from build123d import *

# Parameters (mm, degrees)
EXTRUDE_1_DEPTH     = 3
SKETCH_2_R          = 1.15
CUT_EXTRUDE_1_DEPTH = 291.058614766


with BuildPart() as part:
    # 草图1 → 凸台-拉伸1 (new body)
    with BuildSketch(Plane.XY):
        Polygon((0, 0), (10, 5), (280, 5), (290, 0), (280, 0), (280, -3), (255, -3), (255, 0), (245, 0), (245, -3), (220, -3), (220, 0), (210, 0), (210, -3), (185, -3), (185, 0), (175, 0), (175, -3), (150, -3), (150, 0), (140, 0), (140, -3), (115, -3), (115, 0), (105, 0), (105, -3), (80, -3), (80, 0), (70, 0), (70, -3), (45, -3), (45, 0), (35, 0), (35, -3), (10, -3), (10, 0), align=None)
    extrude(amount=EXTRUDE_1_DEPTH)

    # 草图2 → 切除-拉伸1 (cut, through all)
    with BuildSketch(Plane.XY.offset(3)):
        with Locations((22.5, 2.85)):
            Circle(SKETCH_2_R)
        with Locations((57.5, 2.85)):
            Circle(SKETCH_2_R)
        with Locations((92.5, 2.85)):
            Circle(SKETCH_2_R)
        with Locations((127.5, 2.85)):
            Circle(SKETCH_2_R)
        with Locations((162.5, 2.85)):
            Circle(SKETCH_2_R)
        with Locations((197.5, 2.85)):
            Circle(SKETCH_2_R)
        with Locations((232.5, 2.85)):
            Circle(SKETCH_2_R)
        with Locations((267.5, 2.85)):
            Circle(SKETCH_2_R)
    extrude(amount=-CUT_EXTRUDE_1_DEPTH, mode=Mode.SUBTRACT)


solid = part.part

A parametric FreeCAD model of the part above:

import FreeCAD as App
import Part
import Sketcher
Q = App.Units.Quantity

doc = App.newDocument("Part")
body = doc.addObject("PartDesign::Body", "Body")

# Sketch on XY plane
sketch1 = body.newObject("Sketcher::SketchObject", "Sketch")
sketch1.AttachmentSupport = (doc.getObject("XY_Plane"), [""])
sketch1.MapMode = "FlatFace"
sketch1.addGeometry(Part.LineSegment(App.Vector(10, 5, 0), App.Vector(0, 0, 0)), False)
sketch1.addGeometry(Part.LineSegment(App.Vector(0, 0, 0), App.Vector(10, 0, 0)), False)
sketch1.addGeometry(Part.LineSegment(App.Vector(10, 0, 0), App.Vector(10, -3, 0)), False)
sketch1.addGeometry(Part.LineSegment(App.Vector(10, -3, 0), App.Vector(35, -3, 0)), False)
sketch1.addGeometry(Part.LineSegment(App.Vector(35, -3, 0), App.Vector(35, 0, 0)), False)
sketch1.addGeometry(Part.LineSegment(App.Vector(35, 0, 0), App.Vector(45, 0, 0)), False)
sketch1.addGeometry(Part.LineSegment(App.Vector(45, 0, 0), App.Vector(45, -3, 0)), False)
sketch1.addGeometry(Part.LineSegment(App.Vector(45, -3, 0), App.Vector(70, -3, 0)), False)
sketch1.addGeometry(Part.LineSegment(App.Vector(70, -3, 0), App.Vector(70, 0, 0)), False)
sketch1.addGeometry(Part.LineSegment(App.Vector(70, 0, 0), App.Vector(80, 0, 0)), False)
sketch1.addGeometry(Part.LineSegment(App.Vector(80, 0, 0), App.Vector(80, -3, 0)), False)
sketch1.addGeometry(Part.LineSegment(App.Vector(80, -3, 0), App.Vector(105, -3, 0)), False)
sketch1.addGeometry(Part.LineSegment(App.Vector(105, -3, 0), App.Vector(105, 0, 0)), False)
sketch1.addGeometry(Part.LineSegment(App.Vector(105, 0, 0), App.Vector(115, 0, 0)), False)
sketch1.addGeometry(Part.LineSegment(App.Vector(115, 0, 0), App.Vector(115, -3, 0)), False)
sketch1.addGeometry(Part.LineSegment(App.Vector(115, -3, 0), App.Vector(140, -3, 0)), False)
sketch1.addGeometry(Part.LineSegment(App.Vector(140, -3, 0), App.Vector(140, 0, 0)), False)
sketch1.addGeometry(Part.LineSegment(App.Vector(140, 0, 0), App.Vector(150, 0, 0)), False)
sketch1.addGeometry(Part.LineSegment(App.Vector(150, 0, 0), App.Vector(150, -3, 0)), False)
sketch1.addGeometry(Part.LineSegment(App.Vector(150, -3, 0), App.Vector(175, -3, 0)), False)
sketch1.addGeometry(Part.LineSegment(App.Vector(175, -3, 0), App.Vector(175, 0, 0)), False)
sketch1.addGeometry(Part.LineSegment(App.Vector(175, 0, 0), App.Vector(185, 0, 0)), False)
sketch1.addGeometry(Part.LineSegment(App.Vector(185, 0, 0), App.Vector(185, -3, 0)), False)
sketch1.addGeometry(Part.LineSegment(App.Vector(185, -3, 0), App.Vector(210, -3, 0)), False)
sketch1.addGeometry(Part.LineSegment(App.Vector(210, -3, 0), App.Vector(210, 0, 0)), False)
sketch1.addGeometry(Part.LineSegment(App.Vector(210, 0, 0), App.Vector(220, 0, 0)), False)
sketch1.addGeometry(Part.LineSegment(App.Vector(220, 0, 0), App.Vector(220, -3, 0)), False)
sketch1.addGeometry(Part.LineSegment(App.Vector(220, -3, 0), App.Vector(245, -3, 0)), False)
sketch1.addGeometry(Part.LineSegment(App.Vector(245, -3, 0), App.Vector(245, 0, 0)), False)
sketch1.addGeometry(Part.LineSegment(App.Vector(245, 0, 0), App.Vector(255, 0, 0)), False)
sketch1.addGeometry(Part.LineSegment(App.Vector(255, 0, 0), App.Vector(255, -3, 0)), False)
sketch1.addGeometry(Part.LineSegment(App.Vector(255, -3, 0), App.Vector(280, -3, 0)), False)
sketch1.addGeometry(Part.LineSegment(App.Vector(280, -3, 0), App.Vector(280, 0, 0)), False)
sketch1.addGeometry(Part.LineSegment(App.Vector(280, 0, 0), App.Vector(290, 0, 0)), False)
sketch1.addGeometry(Part.LineSegment(App.Vector(290, 0, 0), App.Vector(280, 5, 0)), False)
sketch1.addGeometry(Part.LineSegment(App.Vector(280, 5, 0), App.Vector(10, 5, 0)), False)
sketch1.addConstraint(Sketcher.Constraint("Coincident", 0, 2, 1, 1))
sketch1.addConstraint(Sketcher.Constraint("Coincident", 1, 2, 2, 1))
sketch1.addConstraint(Sketcher.Constraint("Coincident", 2, 2, 3, 1))
sketch1.addConstraint(Sketcher.Constraint("Coincident", 3, 2, 4, 1))
sketch1.addConstraint(Sketcher.Constraint("Coincident", 4, 2, 5, 1))
sketch1.addConstraint(Sketcher.Constraint("Coincident", 5, 2, 6, 1))
sketch1.addConstraint(Sketcher.Constraint("Coincident", 6, 2, 7, 1))
sketch1.addConstraint(Sketcher.Constraint("Coincident", 7, 2, 8, 1))
sketch1.addConstraint(Sketcher.Constraint("Coincident", 8, 2, 9, 1))
sketch1.addConstraint(Sketcher.Constraint("Coincident", 9, 2, 10, 1))
sketch1.addConstraint(Sketcher.Constraint("Coincident", 10, 2, 11, 1))
sketch1.addConstraint(Sketcher.Constraint("Coincident", 11, 2, 12, 1))
sketch1.addConstraint(Sketcher.Constraint("Coincident", 12, 2, 13, 1))
sketch1.addConstraint(Sketcher.Constraint("Coincident", 13, 2, 14, 1))
sketch1.addConstraint(Sketcher.Constraint("Coincident", 14, 2, 15, 1))
sketch1.addConstraint(Sketcher.Constraint("Coincident", 15, 2, 16, 1))
sketch1.addConstraint(Sketcher.Constraint("Coincident", 16, 2, 17, 1))
sketch1.addConstraint(Sketcher.Constraint("Coincident", 17, 2, 18, 1))
sketch1.addConstraint(Sketcher.Constraint("Coincident", 18, 2, 19, 1))
sketch1.addConstraint(Sketcher.Constraint("Coincident", 19, 2, 20, 1))
sketch1.addConstraint(Sketcher.Constraint("Coincident", 20, 2, 21, 1))
sketch1.addConstraint(Sketcher.Constraint("Coincident", 21, 2, 22, 1))
sketch1.addConstraint(Sketcher.Constraint("Coincident", 22, 2, 23, 1))
sketch1.addConstraint(Sketcher.Constraint("Coincident", 23, 2, 24, 1))
sketch1.addConstraint(Sketcher.Constraint("Coincident", 24, 2, 25, 1))
sketch1.addConstraint(Sketcher.Constraint("Coincident", 25, 2, 26, 1))
sketch1.addConstraint(Sketcher.Constraint("Coincident", 26, 2, 27, 1))
sketch1.addConstraint(Sketcher.Constraint("Coincident", 27, 2, 28, 1))
sketch1.addConstraint(Sketcher.Constraint("Coincident", 28, 2, 29, 1))
sketch1.addConstraint(Sketcher.Constraint("Coincident", 29, 2, 30, 1))
sketch1.addConstraint(Sketcher.Constraint("Coincident", 30, 2, 31, 1))
sketch1.addConstraint(Sketcher.Constraint("Coincident", 31, 2, 32, 1))
sketch1.addConstraint(Sketcher.Constraint("Coincident", 32, 2, 33, 1))
sketch1.addConstraint(Sketcher.Constraint("Coincident", 33, 2, 34, 1))
sketch1.addConstraint(Sketcher.Constraint("Coincident", 34, 2, 35, 1))
sketch1.addConstraint(Sketcher.Constraint("Coincident", 35, 2, 0, 1))
sketch1.addConstraint(Sketcher.Constraint("Horizontal", 1))
sketch1.addConstraint(Sketcher.Constraint("Vertical", 2))
sketch1.addConstraint(Sketcher.Constraint("Horizontal", 3))
sketch1.addConstraint(Sketcher.Constraint("Vertical", 4))
sketch1.addConstraint(Sketcher.Constraint("Horizontal", 5))
sketch1.addConstraint(Sketcher.Constraint("Vertical", 6))
sketch1.addConstraint(Sketcher.Constraint("Horizontal", 7))
sketch1.addConstraint(Sketcher.Constraint("Vertical", 8))
sketch1.addConstraint(Sketcher.Constraint("Horizontal", 9))
sketch1.addConstraint(Sketcher.Constraint("Vertical", 10))
sketch1.addConstraint(Sketcher.Constraint("Horizontal", 11))
sketch1.addConstraint(Sketcher.Constraint("Vertical", 12))
sketch1.addConstraint(Sketcher.Constraint("Horizontal", 13))
sketch1.addConstraint(Sketcher.Constraint("Vertical", 14))
sketch1.addConstraint(Sketcher.Constraint("Horizontal", 15))
sketch1.addConstraint(Sketcher.Constraint("Vertical", 16))
sketch1.addConstraint(Sketcher.Constraint("Horizontal", 17))
sketch1.addConstraint(Sketcher.Constraint("Vertical", 18))
sketch1.addConstraint(Sketcher.Constraint("Horizontal", 19))
sketch1.addConstraint(Sketcher.Constraint("Vertical", 20))
sketch1.addConstraint(Sketcher.Constraint("Horizontal", 21))
sketch1.addConstraint(Sketcher.Constraint("Vertical", 22))
sketch1.addConstraint(Sketcher.Constraint("Horizontal", 23))
sketch1.addConstraint(Sketcher.Constraint("Vertical", 24))
sketch1.addConstraint(Sketcher.Constraint("Horizontal", 25))
sketch1.addConstraint(Sketcher.Constraint("Vertical", 26))
sketch1.addConstraint(Sketcher.Constraint("Horizontal", 27))
sketch1.addConstraint(Sketcher.Constraint("Vertical", 28))
sketch1.addConstraint(Sketcher.Constraint("Horizontal", 29))
sketch1.addConstraint(Sketcher.Constraint("Vertical", 30))
sketch1.addConstraint(Sketcher.Constraint("Horizontal", 31))
sketch1.addConstraint(Sketcher.Constraint("Vertical", 32))
sketch1.addConstraint(Sketcher.Constraint("Horizontal", 33))
sketch1.addConstraint(Sketcher.Constraint("Horizontal", 35))
sketch1.addConstraint(Sketcher.Constraint("Coincident", 0, 2, -1, 1))
sketch1.addConstraint(Sketcher.Constraint("PointOnObject", 4, 2, -1))
sketch1.addConstraint(Sketcher.Constraint("PointOnObject", 8, 2, -1))
sketch1.addConstraint(Sketcher.Constraint("PointOnObject", 12, 2, -1))
sketch1.addConstraint(Sketcher.Constraint("PointOnObject", 16, 2, -1))
sketch1.addConstraint(Sketcher.Constraint("PointOnObject", 20, 2, -1))
sketch1.addConstraint(Sketcher.Constraint("PointOnObject", 24, 2, -1))
sketch1.addConstraint(Sketcher.Constraint("PointOnObject", 28, 2, -1))
sketch1.addConstraint(Sketcher.Constraint("PointOnObject", 32, 2, -1))
sketch1.addConstraint(Sketcher.Constraint("Horizontal", 3, 2, 6, 2))
sketch1.addConstraint(Sketcher.Constraint("Horizontal", 7, 2, 10, 2))
sketch1.addConstraint(Sketcher.Constraint("Horizontal", 11, 2, 14, 2))
sketch1.addConstraint(Sketcher.Constraint("Horizontal", 15, 2, 18, 2))
sketch1.addConstraint(Sketcher.Constraint("Horizontal", 19, 2, 22, 2))
sketch1.addConstraint(Sketcher.Constraint("Horizontal", 23, 2, 26, 2))
sketch1.addConstraint(Sketcher.Constraint("Horizontal", 27, 2, 30, 2))
sketch1.addConstraint(Sketcher.Constraint("Vertical", 32, 2, 34, 2))
sketch1.addConstraint(Sketcher.Constraint("Vertical", 2, 2, 35, 2))
sketch1.addConstraint(Sketcher.Constraint("Equal", 1, 5))
sketch1.addConstraint(Sketcher.Constraint("Equal", 3, 7))
sketch1.addConstraint(Sketcher.Constraint("Equal", 5, 9))
sketch1.addConstraint(Sketcher.Constraint("Equal", 7, 11))
sketch1.addConstraint(Sketcher.Constraint("Equal", 9, 13))
sketch1.addConstraint(Sketcher.Constraint("Equal", 11, 15))
sketch1.addConstraint(Sketcher.Constraint("Equal", 13, 17))
sketch1.addConstraint(Sketcher.Constraint("Equal", 15, 19))
sketch1.addConstraint(Sketcher.Constraint("Equal", 17, 21))
sketch1.addConstraint(Sketcher.Constraint("Equal", 19, 23))
sketch1.addConstraint(Sketcher.Constraint("Equal", 21, 25))
sketch1.addConstraint(Sketcher.Constraint("Equal", 23, 27))
sketch1.addConstraint(Sketcher.Constraint("Equal", 25, 29))
sketch1.addConstraint(Sketcher.Constraint("Equal", 27, 31))
sketch1.addConstraint(Sketcher.Constraint("Equal", 29, 33))
sketch1.addConstraint(Sketcher.Constraint("DistanceX", 1, 1, 1, 2, Q("10 mm")))
sketch1.addConstraint(Sketcher.Constraint("DistanceX", 3, 1, 3, 2, Q("25 mm")))
sketch1.addConstraint(Sketcher.Constraint("DistanceY", 2, 2, 2, 1, Q("3 mm")))
sketch1.addConstraint(Sketcher.Constraint("DistanceY", -1, 1, 34, 2, Q("5 mm")))
pad1 = body.newObject("PartDesign::Pad", "Pad")
pad1.Profile = sketch1
pad1.Length = 3

# Sketch on XY plane
sketch2 = body.newObject("Sketcher::SketchObject", "Sketch001")
sketch2.AttachmentSupport = (doc.getObject("XY_Plane"), [""])
sketch2.MapMode = "FlatFace"
sketch2.AttachmentOffset = App.Placement(App.Vector(0, 0, 3), App.Rotation())
sketch2.addGeometry(Part.Circle(App.Vector(22.5, 2.9, 0), App.Vector(0, 0, 1), 1.1), False)
sketch2.addGeometry(Part.Circle(App.Vector(57.5, 2.9, 0), App.Vector(0, 0, 1), 1.1), False)
sketch2.addGeometry(Part.Circle(App.Vector(92.5, 2.9, 0), App.Vector(0, 0, 1), 1.1), False)
sketch2.addGeometry(Part.Circle(App.Vector(127.5, 2.9, 0), App.Vector(0, 0, 1), 1.1), False)
sketch2.addGeometry(Part.Circle(App.Vector(162.5, 2.9, 0), App.Vector(0, 0, 1), 1.1), False)
sketch2.addGeometry(Part.Circle(App.Vector(197.5, 2.9, 0), App.Vector(0, 0, 1), 1.1), False)
sketch2.addGeometry(Part.Circle(App.Vector(232.5, 2.9, 0), App.Vector(0, 0, 1), 1.1), False)
sketch2.addGeometry(Part.Circle(App.Vector(267.5, 2.9, 0), App.Vector(0, 0, 1), 1.1), False)
sketch2.addConstraint(Sketcher.Constraint("Equal", 0, 1))
sketch2.addConstraint(Sketcher.Constraint("Equal", 1, 2))
sketch2.addConstraint(Sketcher.Constraint("Equal", 2, 3))
sketch2.addConstraint(Sketcher.Constraint("Equal", 3, 4))
sketch2.addConstraint(Sketcher.Constraint("Equal", 4, 5))
sketch2.addConstraint(Sketcher.Constraint("Equal", 5, 6))
sketch2.addConstraint(Sketcher.Constraint("Equal", 6, 7))
sketch2.addConstraint(Sketcher.Constraint("Horizontal", 0, 3, 1, 3))
sketch2.addConstraint(Sketcher.Constraint("Horizontal", 1, 3, 2, 3))
sketch2.addConstraint(Sketcher.Constraint("Horizontal", 2, 3, 3, 3))
sketch2.addConstraint(Sketcher.Constraint("Horizontal", 3, 3, 4, 3))
sketch2.addConstraint(Sketcher.Constraint("Horizontal", 4, 3, 5, 3))
sketch2.addConstraint(Sketcher.Constraint("Horizontal", 5, 3, 6, 3))
sketch2.addConstraint(Sketcher.Constraint("Horizontal", 6, 3, 7, 3))
sketch2.addConstraint(Sketcher.Constraint("Diameter", 0, Q("2.3 mm")))
sketch2.addConstraint(Sketcher.Constraint("DistanceX", 0, 3, 1, 3, Q("35 mm")))
sketch2.addConstraint(Sketcher.Constraint("DistanceX", 1, 3, 2, 3, Q("35 mm")))
sketch2.addConstraint(Sketcher.Constraint("DistanceX", 2, 3, 3, 3, Q("35 mm")))
sketch2.addConstraint(Sketcher.Constraint("DistanceX", 3, 3, 4, 3, Q("35 mm")))
sketch2.addConstraint(Sketcher.Constraint("DistanceX", 4, 3, 5, 3, Q("35 mm")))
sketch2.addConstraint(Sketcher.Constraint("DistanceX", 5, 3, 6, 3, Q("35 mm")))
sketch2.addConstraint(Sketcher.Constraint("DistanceX", 6, 3, 7, 3, Q("35 mm")))
sketch2.addConstraint(Sketcher.Constraint("DistanceX", -1, 1, 0, 3, Q("22.5 mm")))
sketch2.addConstraint(Sketcher.Constraint("DistanceY", -1, 1, 0, 3, Q("2.85 mm")))
pocket1 = body.newObject("PartDesign::Pocket", "Pocket")
pocket1.Profile = sketch2
pocket1.Type = "ThroughAll"

doc.recompute()
